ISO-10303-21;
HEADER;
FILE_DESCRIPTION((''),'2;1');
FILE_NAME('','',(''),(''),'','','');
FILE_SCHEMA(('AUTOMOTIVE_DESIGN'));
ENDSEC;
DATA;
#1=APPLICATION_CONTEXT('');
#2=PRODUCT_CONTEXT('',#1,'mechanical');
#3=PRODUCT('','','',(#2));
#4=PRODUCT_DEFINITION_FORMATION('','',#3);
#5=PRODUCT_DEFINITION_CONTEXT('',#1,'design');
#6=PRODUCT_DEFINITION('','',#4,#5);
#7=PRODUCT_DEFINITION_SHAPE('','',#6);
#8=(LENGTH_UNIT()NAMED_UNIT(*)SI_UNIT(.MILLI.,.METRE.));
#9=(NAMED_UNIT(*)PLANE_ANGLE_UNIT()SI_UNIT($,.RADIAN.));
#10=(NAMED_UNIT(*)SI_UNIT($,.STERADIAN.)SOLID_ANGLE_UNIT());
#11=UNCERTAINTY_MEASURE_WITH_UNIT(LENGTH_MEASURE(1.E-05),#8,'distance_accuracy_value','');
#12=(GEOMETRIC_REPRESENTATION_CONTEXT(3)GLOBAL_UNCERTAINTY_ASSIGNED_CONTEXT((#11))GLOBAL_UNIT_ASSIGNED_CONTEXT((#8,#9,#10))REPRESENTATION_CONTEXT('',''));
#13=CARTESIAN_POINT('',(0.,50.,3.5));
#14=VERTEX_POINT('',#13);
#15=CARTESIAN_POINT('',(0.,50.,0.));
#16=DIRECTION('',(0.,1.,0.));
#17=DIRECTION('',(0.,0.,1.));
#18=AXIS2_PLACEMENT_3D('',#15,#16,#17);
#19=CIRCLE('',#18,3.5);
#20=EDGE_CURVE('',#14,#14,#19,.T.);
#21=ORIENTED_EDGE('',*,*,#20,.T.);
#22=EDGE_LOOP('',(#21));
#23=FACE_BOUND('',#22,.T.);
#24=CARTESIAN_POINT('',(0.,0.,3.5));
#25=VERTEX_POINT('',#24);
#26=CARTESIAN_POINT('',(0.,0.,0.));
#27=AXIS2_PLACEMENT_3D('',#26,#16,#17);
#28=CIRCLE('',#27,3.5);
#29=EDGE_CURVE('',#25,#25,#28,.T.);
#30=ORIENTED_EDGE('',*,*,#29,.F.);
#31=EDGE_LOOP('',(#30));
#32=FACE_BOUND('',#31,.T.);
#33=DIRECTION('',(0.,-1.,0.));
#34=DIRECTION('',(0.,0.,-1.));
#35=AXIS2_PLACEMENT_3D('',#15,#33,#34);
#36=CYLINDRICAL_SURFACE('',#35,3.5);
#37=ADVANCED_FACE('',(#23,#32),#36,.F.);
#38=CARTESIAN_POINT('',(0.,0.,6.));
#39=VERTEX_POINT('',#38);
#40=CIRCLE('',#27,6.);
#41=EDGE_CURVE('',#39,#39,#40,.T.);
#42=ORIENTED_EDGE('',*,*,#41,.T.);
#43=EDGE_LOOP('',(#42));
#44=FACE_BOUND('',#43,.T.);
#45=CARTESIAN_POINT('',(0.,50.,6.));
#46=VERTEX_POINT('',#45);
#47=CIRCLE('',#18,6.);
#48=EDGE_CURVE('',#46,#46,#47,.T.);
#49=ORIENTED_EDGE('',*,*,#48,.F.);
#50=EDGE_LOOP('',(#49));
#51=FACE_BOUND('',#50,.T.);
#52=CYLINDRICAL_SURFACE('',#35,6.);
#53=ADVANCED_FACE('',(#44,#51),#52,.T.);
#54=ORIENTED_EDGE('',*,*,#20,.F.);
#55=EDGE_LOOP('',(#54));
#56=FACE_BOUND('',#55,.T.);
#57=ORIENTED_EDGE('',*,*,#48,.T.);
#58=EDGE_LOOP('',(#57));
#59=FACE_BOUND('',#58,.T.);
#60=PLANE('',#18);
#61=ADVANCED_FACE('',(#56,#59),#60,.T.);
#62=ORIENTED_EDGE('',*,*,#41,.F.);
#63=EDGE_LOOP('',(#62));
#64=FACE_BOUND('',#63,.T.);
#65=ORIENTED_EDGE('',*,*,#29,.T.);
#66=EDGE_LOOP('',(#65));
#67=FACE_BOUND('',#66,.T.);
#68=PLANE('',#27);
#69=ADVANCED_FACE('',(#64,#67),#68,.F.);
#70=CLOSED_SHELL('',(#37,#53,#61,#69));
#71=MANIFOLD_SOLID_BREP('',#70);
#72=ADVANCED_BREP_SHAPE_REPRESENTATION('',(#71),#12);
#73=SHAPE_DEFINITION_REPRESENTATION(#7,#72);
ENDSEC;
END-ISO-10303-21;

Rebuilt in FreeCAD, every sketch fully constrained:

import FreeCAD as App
import Part
import Sketcher
from FreeCAD import Vector

doc = App.newDocument("Part")
body = doc.addObject("PartDesign::Body", "Body")

# Sketch on XZ plane
sketch1 = body.newObject("Sketcher::SketchObject", "Sketch")
sketch1.AttachmentSupport = (doc.getObject("XZ_Plane"), [""])
sketch1.MapMode = "FlatFace"
sketch1.addGeometry([
    Part.Circle(Vector(0, 0, 0), Vector(0, 0, 1), 6),
    Part.Circle(Vector(0, 0, 0), Vector(0, 0, 1), 3.5),
], False)
sketch1.addConstraint([
    Sketcher.Constraint("Coincident", 0, 3, -1, 1),
    Sketcher.Constraint("Coincident", 1, 3, -1, 1),
    Sketcher.Constraint("Diameter", 0, 12.0),
    Sketcher.Constraint("Diameter", 1, 7.0),
])
pad1 = body.newObject("PartDesign::Pad", "Pad")
pad1.Profile = sketch1
pad1.Length = 50
pad1.Reversed = True

doc.recompute()
